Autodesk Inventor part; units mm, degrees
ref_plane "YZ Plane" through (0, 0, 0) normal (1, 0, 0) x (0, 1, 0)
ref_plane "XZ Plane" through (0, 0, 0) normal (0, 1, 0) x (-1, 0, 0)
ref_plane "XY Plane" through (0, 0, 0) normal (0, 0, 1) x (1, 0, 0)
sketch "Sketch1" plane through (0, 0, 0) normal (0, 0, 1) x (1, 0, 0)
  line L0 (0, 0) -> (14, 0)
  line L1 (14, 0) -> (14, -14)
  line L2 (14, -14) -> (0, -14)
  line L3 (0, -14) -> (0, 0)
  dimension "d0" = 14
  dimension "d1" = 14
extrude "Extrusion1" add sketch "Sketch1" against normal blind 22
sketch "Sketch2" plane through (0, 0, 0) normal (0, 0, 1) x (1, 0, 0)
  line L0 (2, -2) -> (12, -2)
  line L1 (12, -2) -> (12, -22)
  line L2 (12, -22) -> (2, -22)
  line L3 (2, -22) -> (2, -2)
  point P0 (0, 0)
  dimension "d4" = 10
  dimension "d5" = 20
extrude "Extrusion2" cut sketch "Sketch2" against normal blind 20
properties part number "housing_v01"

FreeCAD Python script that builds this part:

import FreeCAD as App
import Part
import Sketcher

V = App.Vector


def add_polygon(sketch, points):
    """Adds a closed chain of lines whose ends are joined by coincident constraints."""
    first, n = sketch.GeometryCount, len(points)
    for a, b in zip(points, points[1:] + points[:1]):
        sketch.addGeometry(Part.LineSegment(App.Vector(*a, 0), App.Vector(*b, 0)), False)
    for i in range(n):
        sketch.addConstraint(Sketcher.Constraint("Coincident", first + i, 2, first + (i + 1) % n, 1))

doc = App.newDocument("Part")
params = doc.addObject("Spreadsheet::Sheet", "Params")
for row, (alias, value) in enumerate([
    ("sketch1_width", "14 mm"),
    ("pad1_length", "22 mm"),
    ("sketch2_width", "10 mm"),
    ("sketch2_height", "20 mm"),
    ("pocket1_length", "20 mm"),
], start=1):
    params.set(f"A{row}", alias)
    params.set(f"B{row}", "=" + value)
    params.setAlias(f"B{row}", alias)

body = doc.addObject("PartDesign::Body", "Body")

# Sketch on XY plane
sketch1 = body.newObject("Sketcher::SketchObject", "Sketch")
sketch1.AttachmentSupport = (doc.getObject("XY_Plane"), [""])
sketch1.MapMode = "FlatFace"
add_polygon(sketch1, [(14, 0), (0, 0), (0, -14), (14, -14)])  # lines 0-3
sketch1.addConstraint([
    Sketcher.Constraint("Horizontal", 0),
    Sketcher.Constraint("Vertical", 1),
    Sketcher.Constraint("Horizontal", 2),
    Sketcher.Constraint("Vertical", 3),
    Sketcher.Constraint("Coincident", 0, 2, -1, 1),
    Sketcher.Constraint("Equal", 2, 1),
    Sketcher.Constraint("DistanceX", 0, 2, 0, 1, 14.0),
])
sketch1.setExpression("Constraints[10]", "Params.sketch1_width")
pad1 = body.newObject("PartDesign::Pad", "Pad")
pad1.Profile = sketch1
pad1.setExpression("Length", "Params.pad1_length")
pad1.Reversed = True

# Sketch on XY plane
sketch2 = body.newObject("Sketcher::SketchObject", "Sketch001")
sketch2.AttachmentSupport = (doc.getObject("XY_Plane"), [""])
sketch2.MapMode = "FlatFace"
add_polygon(sketch2, [(12, -2), (2, -2), (2, -22), (12, -22)])  # lines 0-3
sketch2.addConstraint([
    Sketcher.Constraint("Horizontal", 0),
    Sketcher.Constraint("Vertical", 1),
    Sketcher.Constraint("Horizontal", 2),
    Sketcher.Constraint("Vertical", 3),
    Sketcher.Constraint("DistanceX", 0, 2, 0, 1, 10.0),
    Sketcher.Constraint("DistanceY", 1, 2, 1, 1, 20.0),
    Sketcher.Constraint("DistanceX", -1, 1, 0, 2, 2.0),
    Sketcher.Constraint("DistanceY", 0, 2, -1, 1, 2.0),
])
sketch2.setExpression("Constraints[8]", "Params.sketch2_width")
sketch2.setExpression("Constraints[9]", "Params.sketch2_height")
pocket1 = body.newObject("PartDesign::Pocket", "Pocket")
pocket1.Profile = sketch2
pocket1.setExpression("Length", "Params.pocket1_length")

doc.recompute()
